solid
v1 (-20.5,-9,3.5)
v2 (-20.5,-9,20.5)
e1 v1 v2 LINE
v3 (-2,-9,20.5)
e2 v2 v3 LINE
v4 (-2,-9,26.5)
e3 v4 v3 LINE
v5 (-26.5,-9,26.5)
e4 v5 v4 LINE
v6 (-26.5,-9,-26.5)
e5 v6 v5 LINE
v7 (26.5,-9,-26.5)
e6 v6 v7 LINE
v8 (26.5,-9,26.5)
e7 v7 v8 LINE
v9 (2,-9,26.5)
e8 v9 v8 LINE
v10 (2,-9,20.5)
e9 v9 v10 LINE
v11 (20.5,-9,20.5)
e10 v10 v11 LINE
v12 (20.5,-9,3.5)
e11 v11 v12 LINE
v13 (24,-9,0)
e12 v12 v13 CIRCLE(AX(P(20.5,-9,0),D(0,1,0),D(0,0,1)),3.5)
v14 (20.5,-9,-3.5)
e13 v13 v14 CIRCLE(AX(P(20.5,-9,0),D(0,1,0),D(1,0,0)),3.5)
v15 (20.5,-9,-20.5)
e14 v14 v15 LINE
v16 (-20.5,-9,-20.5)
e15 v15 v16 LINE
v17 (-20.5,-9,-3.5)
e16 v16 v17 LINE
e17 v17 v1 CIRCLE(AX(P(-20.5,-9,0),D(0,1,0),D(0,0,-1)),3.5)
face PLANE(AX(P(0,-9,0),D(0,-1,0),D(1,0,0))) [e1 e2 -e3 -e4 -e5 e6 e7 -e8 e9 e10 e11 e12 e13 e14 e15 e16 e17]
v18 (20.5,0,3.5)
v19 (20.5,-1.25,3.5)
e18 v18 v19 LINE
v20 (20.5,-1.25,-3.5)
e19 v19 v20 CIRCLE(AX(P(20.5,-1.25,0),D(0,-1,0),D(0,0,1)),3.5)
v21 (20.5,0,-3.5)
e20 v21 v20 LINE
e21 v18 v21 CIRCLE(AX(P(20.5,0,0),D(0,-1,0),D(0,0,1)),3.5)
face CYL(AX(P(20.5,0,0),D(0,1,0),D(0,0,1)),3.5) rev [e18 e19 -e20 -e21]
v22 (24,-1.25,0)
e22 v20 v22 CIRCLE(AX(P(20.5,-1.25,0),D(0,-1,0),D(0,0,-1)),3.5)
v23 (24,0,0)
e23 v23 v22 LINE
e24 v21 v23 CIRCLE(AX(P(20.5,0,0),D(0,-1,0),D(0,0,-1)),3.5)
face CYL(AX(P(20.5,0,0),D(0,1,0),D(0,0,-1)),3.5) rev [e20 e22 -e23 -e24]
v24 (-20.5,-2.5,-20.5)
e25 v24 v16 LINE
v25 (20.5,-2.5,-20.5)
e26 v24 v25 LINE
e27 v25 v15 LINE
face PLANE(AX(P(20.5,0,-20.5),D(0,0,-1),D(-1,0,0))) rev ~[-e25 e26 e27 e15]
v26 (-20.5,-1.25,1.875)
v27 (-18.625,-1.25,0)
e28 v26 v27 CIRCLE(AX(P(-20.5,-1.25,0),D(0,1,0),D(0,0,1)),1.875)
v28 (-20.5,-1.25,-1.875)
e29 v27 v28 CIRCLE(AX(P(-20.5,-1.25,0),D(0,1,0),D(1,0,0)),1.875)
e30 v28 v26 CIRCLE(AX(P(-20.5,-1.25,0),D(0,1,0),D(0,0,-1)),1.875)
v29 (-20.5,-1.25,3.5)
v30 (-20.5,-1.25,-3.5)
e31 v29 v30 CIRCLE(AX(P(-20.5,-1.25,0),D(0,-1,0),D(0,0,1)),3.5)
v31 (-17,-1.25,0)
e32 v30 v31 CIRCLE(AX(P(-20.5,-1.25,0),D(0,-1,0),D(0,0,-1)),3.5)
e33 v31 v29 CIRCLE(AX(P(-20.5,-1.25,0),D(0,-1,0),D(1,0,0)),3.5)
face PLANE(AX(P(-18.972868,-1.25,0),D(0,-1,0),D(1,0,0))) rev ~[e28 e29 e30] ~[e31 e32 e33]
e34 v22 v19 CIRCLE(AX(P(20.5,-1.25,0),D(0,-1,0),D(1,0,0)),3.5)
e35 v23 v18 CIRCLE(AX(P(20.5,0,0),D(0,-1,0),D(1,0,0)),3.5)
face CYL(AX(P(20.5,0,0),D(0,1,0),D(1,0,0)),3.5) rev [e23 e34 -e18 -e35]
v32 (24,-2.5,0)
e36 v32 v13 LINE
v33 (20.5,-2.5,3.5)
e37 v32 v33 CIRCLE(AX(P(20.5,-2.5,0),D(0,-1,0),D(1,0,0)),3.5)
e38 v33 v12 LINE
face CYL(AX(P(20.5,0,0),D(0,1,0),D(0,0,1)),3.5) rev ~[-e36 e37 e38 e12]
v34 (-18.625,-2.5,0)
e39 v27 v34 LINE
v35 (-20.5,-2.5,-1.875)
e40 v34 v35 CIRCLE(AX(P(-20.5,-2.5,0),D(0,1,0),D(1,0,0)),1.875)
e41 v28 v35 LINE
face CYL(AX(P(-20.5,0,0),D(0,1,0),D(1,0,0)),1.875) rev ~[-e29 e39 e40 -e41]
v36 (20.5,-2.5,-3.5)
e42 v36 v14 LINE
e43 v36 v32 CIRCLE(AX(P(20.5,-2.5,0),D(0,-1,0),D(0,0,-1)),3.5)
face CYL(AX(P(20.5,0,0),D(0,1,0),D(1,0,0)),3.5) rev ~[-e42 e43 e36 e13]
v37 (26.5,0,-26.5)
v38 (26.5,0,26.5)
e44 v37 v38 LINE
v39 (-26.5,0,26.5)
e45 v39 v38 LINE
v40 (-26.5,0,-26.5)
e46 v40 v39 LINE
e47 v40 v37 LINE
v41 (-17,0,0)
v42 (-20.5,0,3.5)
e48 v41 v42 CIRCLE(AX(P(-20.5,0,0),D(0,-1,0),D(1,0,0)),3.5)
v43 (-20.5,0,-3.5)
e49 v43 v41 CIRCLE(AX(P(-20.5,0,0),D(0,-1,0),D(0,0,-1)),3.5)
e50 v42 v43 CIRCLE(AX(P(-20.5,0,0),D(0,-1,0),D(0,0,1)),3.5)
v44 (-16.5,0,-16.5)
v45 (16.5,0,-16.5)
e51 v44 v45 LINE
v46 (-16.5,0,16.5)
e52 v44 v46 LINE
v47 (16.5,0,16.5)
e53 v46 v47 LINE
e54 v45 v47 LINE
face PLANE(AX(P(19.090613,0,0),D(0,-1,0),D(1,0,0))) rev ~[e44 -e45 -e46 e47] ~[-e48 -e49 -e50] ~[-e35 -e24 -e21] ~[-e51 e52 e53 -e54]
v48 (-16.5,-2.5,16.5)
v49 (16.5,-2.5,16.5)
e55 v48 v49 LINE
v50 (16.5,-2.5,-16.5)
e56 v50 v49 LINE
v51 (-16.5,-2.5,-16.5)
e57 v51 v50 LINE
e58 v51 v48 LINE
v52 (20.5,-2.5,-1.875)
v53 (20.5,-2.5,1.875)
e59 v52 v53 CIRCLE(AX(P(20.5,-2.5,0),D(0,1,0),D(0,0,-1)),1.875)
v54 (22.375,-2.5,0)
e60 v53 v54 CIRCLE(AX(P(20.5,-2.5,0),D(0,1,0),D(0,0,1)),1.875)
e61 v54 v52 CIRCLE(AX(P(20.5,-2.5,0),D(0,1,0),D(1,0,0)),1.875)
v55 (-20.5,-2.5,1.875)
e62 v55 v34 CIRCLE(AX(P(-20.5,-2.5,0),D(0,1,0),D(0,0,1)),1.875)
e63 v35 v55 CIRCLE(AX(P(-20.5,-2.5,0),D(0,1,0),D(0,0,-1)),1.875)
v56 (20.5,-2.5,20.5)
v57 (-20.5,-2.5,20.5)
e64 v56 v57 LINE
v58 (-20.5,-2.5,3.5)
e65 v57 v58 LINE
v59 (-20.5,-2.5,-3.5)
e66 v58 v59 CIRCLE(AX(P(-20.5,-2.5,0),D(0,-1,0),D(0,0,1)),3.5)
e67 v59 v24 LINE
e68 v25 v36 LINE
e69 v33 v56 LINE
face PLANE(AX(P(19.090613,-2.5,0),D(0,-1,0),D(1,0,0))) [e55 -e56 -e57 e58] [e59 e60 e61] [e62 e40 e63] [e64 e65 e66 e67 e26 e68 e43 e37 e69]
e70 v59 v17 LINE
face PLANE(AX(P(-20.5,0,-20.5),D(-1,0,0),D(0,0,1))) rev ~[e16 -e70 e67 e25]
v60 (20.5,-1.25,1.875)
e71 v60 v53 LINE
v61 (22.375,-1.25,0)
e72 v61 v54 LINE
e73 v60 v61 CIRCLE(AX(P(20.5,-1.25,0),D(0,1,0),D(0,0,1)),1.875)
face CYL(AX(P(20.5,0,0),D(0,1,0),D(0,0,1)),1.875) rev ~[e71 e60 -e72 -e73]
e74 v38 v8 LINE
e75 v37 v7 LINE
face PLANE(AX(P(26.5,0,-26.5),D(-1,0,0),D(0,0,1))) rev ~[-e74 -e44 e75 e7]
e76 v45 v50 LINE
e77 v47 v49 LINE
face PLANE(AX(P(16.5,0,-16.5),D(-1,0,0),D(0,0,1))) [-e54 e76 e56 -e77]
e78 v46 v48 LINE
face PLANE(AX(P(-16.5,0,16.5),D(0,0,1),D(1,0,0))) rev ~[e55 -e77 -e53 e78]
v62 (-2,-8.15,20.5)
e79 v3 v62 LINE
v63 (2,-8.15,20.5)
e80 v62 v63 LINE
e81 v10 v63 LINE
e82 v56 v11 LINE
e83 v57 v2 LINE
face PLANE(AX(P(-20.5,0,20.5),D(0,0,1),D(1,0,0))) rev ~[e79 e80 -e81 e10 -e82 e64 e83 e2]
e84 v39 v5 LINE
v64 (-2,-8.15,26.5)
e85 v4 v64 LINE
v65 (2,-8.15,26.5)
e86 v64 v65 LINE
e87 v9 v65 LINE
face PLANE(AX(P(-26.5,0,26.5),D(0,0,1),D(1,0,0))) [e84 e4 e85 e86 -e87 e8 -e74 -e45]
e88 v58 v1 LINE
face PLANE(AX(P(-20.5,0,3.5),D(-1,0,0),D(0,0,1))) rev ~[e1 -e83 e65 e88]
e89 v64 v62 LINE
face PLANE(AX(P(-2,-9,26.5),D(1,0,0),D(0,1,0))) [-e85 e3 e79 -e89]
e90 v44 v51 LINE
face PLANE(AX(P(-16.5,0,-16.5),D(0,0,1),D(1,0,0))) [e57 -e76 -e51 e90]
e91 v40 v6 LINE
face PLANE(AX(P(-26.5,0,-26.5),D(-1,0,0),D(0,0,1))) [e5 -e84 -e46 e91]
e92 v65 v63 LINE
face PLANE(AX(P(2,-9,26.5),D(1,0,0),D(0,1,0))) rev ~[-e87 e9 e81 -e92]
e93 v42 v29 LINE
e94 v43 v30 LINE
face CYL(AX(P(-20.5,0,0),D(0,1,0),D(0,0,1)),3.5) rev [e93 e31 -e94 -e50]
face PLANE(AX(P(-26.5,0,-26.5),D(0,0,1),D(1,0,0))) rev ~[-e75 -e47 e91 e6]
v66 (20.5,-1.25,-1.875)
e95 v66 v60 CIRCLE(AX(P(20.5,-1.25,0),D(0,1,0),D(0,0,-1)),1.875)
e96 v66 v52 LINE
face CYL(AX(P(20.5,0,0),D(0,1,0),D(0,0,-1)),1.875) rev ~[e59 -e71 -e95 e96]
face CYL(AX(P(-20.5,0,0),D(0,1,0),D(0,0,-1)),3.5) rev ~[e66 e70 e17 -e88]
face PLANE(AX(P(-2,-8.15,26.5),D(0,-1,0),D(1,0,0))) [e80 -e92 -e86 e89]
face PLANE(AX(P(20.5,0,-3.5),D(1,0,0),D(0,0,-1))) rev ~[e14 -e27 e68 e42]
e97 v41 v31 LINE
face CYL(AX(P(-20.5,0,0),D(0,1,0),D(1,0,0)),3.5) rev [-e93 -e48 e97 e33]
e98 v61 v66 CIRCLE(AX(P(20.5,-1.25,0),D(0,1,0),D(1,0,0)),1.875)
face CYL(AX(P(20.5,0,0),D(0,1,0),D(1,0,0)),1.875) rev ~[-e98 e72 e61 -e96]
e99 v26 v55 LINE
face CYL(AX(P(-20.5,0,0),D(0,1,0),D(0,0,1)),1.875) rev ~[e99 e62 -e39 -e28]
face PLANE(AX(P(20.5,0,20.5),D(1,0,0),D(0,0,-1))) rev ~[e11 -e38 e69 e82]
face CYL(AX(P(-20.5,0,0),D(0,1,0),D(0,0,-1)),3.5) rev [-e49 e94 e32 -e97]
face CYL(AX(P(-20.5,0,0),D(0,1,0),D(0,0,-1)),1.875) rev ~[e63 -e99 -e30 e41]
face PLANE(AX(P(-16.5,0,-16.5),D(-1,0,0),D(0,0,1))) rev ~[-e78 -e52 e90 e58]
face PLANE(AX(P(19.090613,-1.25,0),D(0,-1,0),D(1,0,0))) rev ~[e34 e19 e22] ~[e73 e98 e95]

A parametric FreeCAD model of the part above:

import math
import FreeCAD as App
import Part
import Sketcher

doc = App.newDocument("Part")
body = doc.addObject("PartDesign::Body", "Body")

sketch1 = doc.addObject("Sketcher::SketchObject", "Sketch")
body.addObject(sketch1)
sketch1.AttachmentSupport = (doc.XZ_Plane, [""])
sketch1.MapMode = "FlatFace"
sketch1.addGeometry([
    Part.LineSegment(App.Vector(-20.5, -20.5, 0), App.Vector(20.5, -20.5, 0)),
    Part.LineSegment(App.Vector(20.5, -20.5, 0), App.Vector(20.5, -3.5, 0)),
    Part.ArcOfCircle(Part.Circle(App.Vector(20.5, 0, 0), App.Vector(0, 0, 1), 3.5), math.radians(90), math.radians(270)),
    Part.LineSegment(App.Vector(20.5, 3.5, 0), App.Vector(20.5, 20.5, 0)),
    Part.LineSegment(App.Vector(20.5, 20.5, 0), App.Vector(-20.5, 20.5, 0)),
    Part.LineSegment(App.Vector(-20.5, 20.5, 0), App.Vector(-20.5, 3.5, 0)),
    Part.ArcOfCircle(Part.Circle(App.Vector(-20.5, 0, 0), App.Vector(0, 0, 1), 3.5), math.radians(0), math.radians(90)),
    Part.ArcOfCircle(Part.Circle(App.Vector(-20.5, 0, 0), App.Vector(0, 0, 1), 3.5), math.radians(-90), math.radians(0)),
    Part.LineSegment(App.Vector(-20.5, -3.5, 0), App.Vector(-20.5, -20.5, 0)),
    Part.LineSegment(App.Vector(16.5, -16.5, 0), App.Vector(-16.5, -16.5, 0)),
    Part.LineSegment(App.Vector(-16.5, -16.5, 0), App.Vector(-16.5, 16.5, 0)),
    Part.LineSegment(App.Vector(-16.5, 16.5, 0), App.Vector(16.5, 16.5, 0)),
    Part.LineSegment(App.Vector(16.5, 16.5, 0), App.Vector(16.5, -16.5, 0)),
], False)
sketch1.addConstraint([
    Sketcher.Constraint("Coincident", 0, 2, 1, 1),
    Sketcher.Constraint("Coincident", 1, 2, 2, 2),
    Sketcher.Constraint("Coincident", 2, 1, 3, 1),
    Sketcher.Constraint("Coincident", 3, 2, 4, 1),
    Sketcher.Constraint("Coincident", 4, 2, 5, 1),
    Sketcher.Constraint("Coincident", 5, 2, 6, 2),
    Sketcher.Constraint("Tangent", 6, 1, 7, 2),
    Sketcher.Constraint("Coincident", 7, 1, 8, 1),
    Sketcher.Constraint("Coincident", 8, 2, 0, 1),
    Sketcher.Constraint("Coincident", 9, 2, 10, 1),
    Sketcher.Constraint("Coincident", 10, 2, 11, 1),
    Sketcher.Constraint("Coincident", 11, 2, 12, 1),
    Sketcher.Constraint("Coincident", 12, 2, 9, 1),
    Sketcher.Constraint("Horizontal", 0),
    Sketcher.Constraint("Vertical", 1),
    Sketcher.Constraint("Vertical", 3),
    Sketcher.Constraint("Horizontal", 4),
    Sketcher.Constraint("Vertical", 5),
    Sketcher.Constraint("Vertical", 8),
    Sketcher.Constraint("Horizontal", 9),
    Sketcher.Constraint("Vertical", 10),
    Sketcher.Constraint("Horizontal", 11),
    Sketcher.Constraint("Vertical", 12),
    Sketcher.Constraint("Equal", 2, 6),
    Sketcher.Constraint("Equal", 6, 7),
    Sketcher.Constraint("Symmetric", 2, 3, 6, 3, -1, 1),
    Sketcher.Constraint("Symmetric", 0, 2, 4, 2, -1, 1),
    Sketcher.Constraint("Symmetric", 9, 2, 11, 2, -1, 1),
    Sketcher.Constraint("Symmetric", 2, 1, 5, 2, -2),
    Sketcher.Constraint("PointOnObject", 6, 1, -1),
    Sketcher.Constraint("Vertical", 2, 3, 0, 2),
    Sketcher.Constraint("Vertical", 5, 2, 7, 1),
    Sketcher.Constraint("Equal", 11, 10),
    Sketcher.Constraint("Radius", 2, 3.5),
    Sketcher.Constraint("DistanceX", 0, 1, 0, 2, 41.0),
    Sketcher.Constraint("DistanceX", 9, 2, 9, 1, 33.0),
    Sketcher.Constraint("DistanceY", 1, 1, 1, 2, 17.0),
])
pad1 = doc.addObject("PartDesign::Pad", "Pad")
body.addObject(pad1)
pad1.Profile = sketch1
pad1.Length = 2.5

sketch2 = doc.addObject("Sketcher::SketchObject", "Sketch001")
body.addObject(sketch2)
sketch2.AttachmentSupport = (doc.XZ_Plane, [""])
sketch2.MapMode = "FlatFace"
sketch2.addGeometry([
    Part.LineSegment(App.Vector(-26.5, 26.5, 0), App.Vector(-26.5, -26.5, 0)),
    Part.LineSegment(App.Vector(-26.5, -26.5, 0), App.Vector(26.5, -26.5, 0)),
    Part.LineSegment(App.Vector(26.5, -26.5, 0), App.Vector(26.5, 26.5, 0)),
    Part.LineSegment(App.Vector(26.5, 26.5, 0), App.Vector(-26.5, 26.5, 0)),
    Part.ArcOfCircle(Part.Circle(App.Vector(20.5, 0, 0), App.Vector(0, 0, 1), 3.5), math.radians(-90), math.radians(0)),
    Part.LineSegment(App.Vector(20.5, -3.5, 0), App.Vector(20.5, -20.5, 0)),
    Part.LineSegment(App.Vector(20.5, -20.5, 0), App.Vector(-20.5, -20.5, 0)),
    Part.LineSegment(App.Vector(-20.5, -20.5, 0), App.Vector(-20.5, -3.5, 0)),
    Part.ArcOfCircle(Part.Circle(App.Vector(-20.5, 0, 0), App.Vector(0, 0, 1), 3.5), math.radians(90), math.radians(270)),
    Part.LineSegment(App.Vector(-20.5, 3.5, 0), App.Vector(-20.5, 20.5, 0)),
    Part.LineSegment(App.Vector(-20.5, 20.5, 0), App.Vector(20.5, 20.5, 0)),
    Part.LineSegment(App.Vector(20.5, 20.5, 0), App.Vector(20.5, 3.5, 0)),
    Part.ArcOfCircle(Part.Circle(App.Vector(20.5, 0, 0), App.Vector(0, 0, 1), 3.5), math.radians(0), math.radians(90)),
], False)
sketch2.addConstraint([
    Sketcher.Constraint("Coincident", 0, 2, 1, 1),
    Sketcher.Constraint("Coincident", 1, 2, 2, 1),
    Sketcher.Constraint("Coincident", 2, 2, 3, 1),
    Sketcher.Constraint("Coincident", 3, 2, 0, 1),
    Sketcher.Constraint("Coincident", 4, 1, 5, 1),
    Sketcher.Constraint("Coincident", 5, 2, 6, 1),
    Sketcher.Constraint("Coincident", 6, 2, 7, 1),
    Sketcher.Constraint("Coincident", 7, 2, 8, 2),
    Sketcher.Constraint("Coincident", 8, 1, 9, 1),
    Sketcher.Constraint("Coincident", 9, 2, 10, 1),
    Sketcher.Constraint("Coincident", 10, 2, 11, 1),
    Sketcher.Constraint("Coincident", 11, 2, 12, 2),
    Sketcher.Constraint("Tangent", 12, 1, 4, 2),
    Sketcher.Constraint("Vertical", 0),
    Sketcher.Constraint("Horizontal", 1),
    Sketcher.Constraint("Vertical", 2),
    Sketcher.Constraint("Horizontal", 3),
    Sketcher.Constraint("Vertical", 5),
    Sketcher.Constraint("Horizontal", 6),
    Sketcher.Constraint("Vertical", 7),
    Sketcher.Constraint("Vertical", 9),
    Sketcher.Constraint("Horizontal", 10),
    Sketcher.Constraint("Vertical", 11),
    Sketcher.Constraint("Equal", 4, 8),
    Sketcher.Constraint("Equal", 8, 12),
    Sketcher.Constraint("Symmetric", 4, 3, 8, 3, -1, 1),
    Sketcher.Constraint("Symmetric", 0, 2, 2, 2, -1, 1),
    Sketcher.Constraint("Symmetric", 5, 2, 9, 2, -1, 1),
    Sketcher.Constraint("Symmetric", 4, 1, 7, 2, -2),
    Sketcher.Constraint("PointOnObject", 12, 1, -1),
    Sketcher.Constraint("Vertical", 12, 3, 4, 1),
    Sketcher.Constraint("Vertical", 5, 2, 10, 2),
    Sketcher.Constraint("Equal", 3, 0),
    Sketcher.Constraint("Radius", 4, 3.5),
    Sketcher.Constraint("DistanceX", 1, 1, 1, 2, 53.0),
    Sketcher.Constraint("DistanceX", 6, 2, 6, 1, 41.0),
    Sketcher.Constraint("DistanceY", 5, 2, 5, 1, 17.0),
])
pad2 = doc.addObject("PartDesign::Pad", "Pad001")
body.addObject(pad2)
pad2.Profile = sketch2
pad2.Length = 9

sketch3 = doc.addObject("Sketcher::SketchObject", "Sketch002")
body.addObject(sketch3)
sketch3.AttachmentSupport = (doc.XY_Plane, [""])
sketch3.MapMode = "FlatFace"
sketch3.AttachmentOffset = App.Placement(App.Vector(0, 0, 26.5), App.Rotation())
sketch3.addGeometry([
    Part.LineSegment(App.Vector(-2, -8.2, 0), App.Vector(-2, -9, 0)),
    Part.LineSegment(App.Vector(-2, -9, 0), App.Vector(2, -9, 0)),
    Part.LineSegment(App.Vector(2, -9, 0), App.Vector(2, -8.2, 0)),
    Part.LineSegment(App.Vector(2, -8.2, 0), App.Vector(-2, -8.2, 0)),
], False)
sketch3.addConstraint([
    Sketcher.Constraint("Coincident", 0, 2, 1, 1),
    Sketcher.Constraint("Coincident", 1, 2, 2, 1),
    Sketcher.Constraint("Coincident", 2, 2, 3, 1),
    Sketcher.Constraint("Coincident", 3, 2, 0, 1),
    Sketcher.Constraint("Vertical", 0),
    Sketcher.Constraint("Horizontal", 1),
    Sketcher.Constraint("Vertical", 2),
    Sketcher.Constraint("Horizontal", 3),
    Sketcher.Constraint("DistanceX", 1, 1, 1, 2, 4.0),
    Sketcher.Constraint("DistanceX", 0, 2, -1, 1, 2.0),
    Sketcher.Constraint("DistanceY", 0, 2, -1, 1, 9.0),
    Sketcher.Constraint("DistanceY", 0, 2, 0, 1, 0.85),
])
pocket1 = doc.addObject("PartDesign::Pocket", "Pocket")
body.addObject(pocket1)
pocket1.Profile = sketch3
pocket1.Length = 6.75

sketch4 = doc.addObject("Sketcher::SketchObject", "Sketch003")
body.addObject(sketch4)
sketch4.AttachmentSupport = (doc.XZ_Plane, [""])
sketch4.MapMode = "FlatFace"
sketch4.addGeometry([
    Part.ArcOfCircle(Part.Circle(App.Vector(20.5, 0, 0), App.Vector(0, 0, 1), 3.5), math.radians(90), math.radians(270)),
    Part.ArcOfCircle(Part.Circle(App.Vector(20.5, 0, 0), App.Vector(0, 0, 1), 3.5), math.radians(-90), math.radians(0)),
    Part.ArcOfCircle(Part.Circle(App.Vector(20.5, 0, 0), App.Vector(0, 0, 1), 3.5), math.radians(0), math.radians(90)),
    Part.ArcOfCircle(Part.Circle(App.Vector(20.5, 0, 0), App.Vector(0, 0, 1), 1.9), math.radians(90), math.radians(270)),
    Part.ArcOfCircle(Part.Circle(App.Vector(20.5, 0, 0), App.Vector(0, 0, 1), 1.9), math.radians(0), math.radians(90)),
    Part.ArcOfCircle(Part.Circle(App.Vector(20.5, 0, 0), App.Vector(0, 0, 1), 1.9), math.radians(-90), math.radians(0)),
    Part.ArcOfCircle(Part.Circle(App.Vector(-20.5, 0, 0), App.Vector(0, 0, 1), 3.5), math.radians(-90), math.radians(0)),
    Part.ArcOfCircle(Part.Circle(App.Vector(-20.5, 0, 0), App.Vector(0, 0, 1), 3.5), math.radians(0), math.radians(90)),
    Part.ArcOfCircle(Part.Circle(App.Vector(-20.5, 0, 0), App.Vector(0, 0, 1), 3.5), math.radians(90), math.radians(270)),
    Part.ArcOfCircle(Part.Circle(App.Vector(-20.5, 0, 0), App.Vector(0, 0, 1), 1.9), math.radians(0), math.radians(90)),
    Part.ArcOfCircle(Part.Circle(App.Vector(-20.5, 0, 0), App.Vector(0, 0, 1), 1.9), math.radians(-90), math.radians(0)),
    Part.ArcOfCircle(Part.Circle(App.Vector(-20.5, 0, 0), App.Vector(0, 0, 1), 1.9), math.radians(90), math.radians(270)),
], False)
sketch4.addConstraint([
    Sketcher.Constraint("Tangent", 0, 2, 1, 1),
    Sketcher.Constraint("Tangent", 1, 2, 2, 1),
    Sketcher.Constraint("Tangent", 2, 2, 0, 1),
    Sketcher.Constraint("Tangent", 3, 1, 4, 2),
    Sketcher.Constraint("Tangent", 4, 1, 5, 2),
    Sketcher.Constraint("Tangent", 5, 1, 3, 2),
    Sketcher.Constraint("Tangent", 6, 2, 7, 1),
    Sketcher.Constraint("Tangent", 7, 2, 8, 1),
    Sketcher.Constraint("Tangent", 8, 2, 6, 1),
    Sketcher.Constraint("Tangent", 9, 1, 10, 2),
    Sketcher.Constraint("Tangent", 10, 1, 11, 2),
    Sketcher.Constraint("Tangent", 11, 1, 9, 2),
    Sketcher.Constraint("Coincident", 3, 3, 0, 3),
    Sketcher.Constraint("Coincident", 9, 3, 6, 3),
    Sketcher.Constraint("Equal", 2, 6),
    Sketcher.Constraint("Equal", 5, 9),
    Sketcher.Constraint("Symmetric", 0, 3, 6, 3, -1, 1),
    Sketcher.Constraint("Symmetric", 2, 2, 7, 2, -2),
    Sketcher.Constraint("PointOnObject", 1, 2, -1),
    Sketcher.Constraint("PointOnObject", 4, 1, -1),
    Sketcher.Constraint("PointOnObject", 6, 2, -1),
    Sketcher.Constraint("PointOnObject", 9, 1, -1),
    Sketcher.Constraint("Vertical", 5, 3, 0, 2),
    Sketcher.Constraint("Vertical", 0, 2, 2, 2),
    Sketcher.Constraint("Vertical", 2, 2, 3, 1),
    Sketcher.Constraint("Vertical", 3, 1, 5, 1),
    Sketcher.Constraint("Vertical", 7, 2, 8, 2),
    Sketcher.Constraint("Vertical", 8, 2, 10, 1),
    Sketcher.Constraint("Vertical", 10, 1, 11, 1),
    Sketcher.Constraint("Radius", 0, 3.5),
    Sketcher.Constraint("DistanceX", -1, 1, 1, 2, 24.0),
    Sketcher.Constraint("Radius", 3, 1.875),
])
pad3 = doc.addObject("PartDesign::Pad", "Pad002")
body.addObject(pad3)
pad3.Profile = sketch4
pad3.Length = 2.5

sketch5 = doc.addObject("Sketcher::SketchObject", "Sketch004")
body.addObject(sketch5)
sketch5.AttachmentSupport = (doc.XZ_Plane, [""])
sketch5.MapMode = "FlatFace"
sketch5.addGeometry([
    Part.ArcOfCircle(Part.Circle(App.Vector(20.5, 0, 0), App.Vector(0, 0, 1), 3.5), math.radians(90), math.radians(270)),
    Part.ArcOfCircle(Part.Circle(App.Vector(20.5, 0, 0), App.Vector(0, 0, 1), 3.5), math.radians(-90), math.radians(0)),
    Part.ArcOfCircle(Part.Circle(App.Vector(20.5, 0, 0), App.Vector(0, 0, 1), 3.5), math.radians(0), math.radians(90)),
    Part.ArcOfCircle(Part.Circle(App.Vector(20.5, 0, 0), App.Vector(0, 0, 1), 1.9), math.radians(90), math.radians(270)),
    Part.ArcOfCircle(Part.Circle(App.Vector(20.5, 0, 0), App.Vector(0, 0, 1), 1.9), math.radians(0), math.radians(90)),
    Part.ArcOfCircle(Part.Circle(App.Vector(20.5, 0, 0), App.Vector(0, 0, 1), 1.9), math.radians(-90), math.radians(0)),
    Part.ArcOfCircle(Part.Circle(App.Vector(-20.5, 0, 0), App.Vector(0, 0, 1), 3.5), math.radians(-90), math.radians(0)),
    Part.ArcOfCircle(Part.Circle(App.Vector(-20.5, 0, 0), App.Vector(0, 0, 1), 3.5), math.radians(0), math.radians(90)),
    Part.ArcOfCircle(Part.Circle(App.Vector(-20.5, 0, 0), App.Vector(0, 0, 1), 3.5), math.radians(90), math.radians(270)),
    Part.ArcOfCircle(Part.Circle(App.Vector(-20.5, 0, 0), App.Vector(0, 0, 1), 1.9), math.radians(0), math.radians(90)),
    Part.ArcOfCircle(Part.Circle(App.Vector(-20.5, 0, 0), App.Vector(0, 0, 1), 1.9), math.radians(-90), math.radians(0)),
    Part.ArcOfCircle(Part.Circle(App.Vector(-20.5, 0, 0), App.Vector(0, 0, 1), 1.9), math.radians(90), math.radians(270)),
], False)
sketch5.addConstraint([
    Sketcher.Constraint("Tangent", 0, 2, 1, 1),
    Sketcher.Constraint("Tangent", 1, 2, 2, 1),
    Sketcher.Constraint("Tangent", 2, 2, 0, 1),
    Sketcher.Constraint("Tangent", 3, 1, 4, 2),
    Sketcher.Constraint("Tangent", 4, 1, 5, 2),
    Sketcher.Constraint("Tangent", 5, 1, 3, 2),
    Sketcher.Constraint("Tangent", 6, 2, 7, 1),
    Sketcher.Constraint("Tangent", 7, 2, 8, 1),
    Sketcher.Constraint("Tangent", 8, 2, 6, 1),
    Sketcher.Constraint("Tangent", 9, 1, 10, 2),
    Sketcher.Constraint("Tangent", 10, 1, 11, 2),
    Sketcher.Constraint("Tangent", 11, 1, 9, 2),
    Sketcher.Constraint("Coincident", 3, 3, 0, 3),
    Sketcher.Constraint("Coincident", 9, 3, 6, 3),
    Sketcher.Constraint("Equal", 2, 6),
    Sketcher.Constraint("Equal", 5, 9),
    Sketcher.Constraint("Symmetric", 0, 3, 6, 3, -1, 1),
    Sketcher.Constraint("Symmetric", 2, 2, 7, 2, -2),
    Sketcher.Constraint("PointOnObject", 1, 2, -1),
    Sketcher.Constraint("PointOnObject", 4, 1, -1),
    Sketcher.Constraint("PointOnObject", 6, 2, -1),
    Sketcher.Constraint("PointOnObject", 9, 1, -1),
    Sketcher.Constraint("Vertical", 5, 3, 0, 2),
    Sketcher.Constraint("Vertical", 0, 2, 2, 2),
    Sketcher.Constraint("Vertical", 2, 2, 3, 1),
    Sketcher.Constraint("Vertical", 3, 1, 5, 1),
    Sketcher.Constraint("Vertical", 7, 2, 8, 2),
    Sketcher.Constraint("Vertical", 8, 2, 10, 1),
    Sketcher.Constraint("Vertical", 10, 1, 11, 1),
    Sketcher.Constraint("Radius", 0, 3.5),
    Sketcher.Constraint("DistanceX", -1, 1, 1, 2, 24.0),
    Sketcher.Constraint("Radius", 3, 1.875),
])
pocket2 = doc.addObject("PartDesign::Pocket", "Pocket001")
body.addObject(pocket2)
pocket2.Profile = sketch5
pocket2.Length = 1.25
pocket2.Reversed = True

doc.recompute()
